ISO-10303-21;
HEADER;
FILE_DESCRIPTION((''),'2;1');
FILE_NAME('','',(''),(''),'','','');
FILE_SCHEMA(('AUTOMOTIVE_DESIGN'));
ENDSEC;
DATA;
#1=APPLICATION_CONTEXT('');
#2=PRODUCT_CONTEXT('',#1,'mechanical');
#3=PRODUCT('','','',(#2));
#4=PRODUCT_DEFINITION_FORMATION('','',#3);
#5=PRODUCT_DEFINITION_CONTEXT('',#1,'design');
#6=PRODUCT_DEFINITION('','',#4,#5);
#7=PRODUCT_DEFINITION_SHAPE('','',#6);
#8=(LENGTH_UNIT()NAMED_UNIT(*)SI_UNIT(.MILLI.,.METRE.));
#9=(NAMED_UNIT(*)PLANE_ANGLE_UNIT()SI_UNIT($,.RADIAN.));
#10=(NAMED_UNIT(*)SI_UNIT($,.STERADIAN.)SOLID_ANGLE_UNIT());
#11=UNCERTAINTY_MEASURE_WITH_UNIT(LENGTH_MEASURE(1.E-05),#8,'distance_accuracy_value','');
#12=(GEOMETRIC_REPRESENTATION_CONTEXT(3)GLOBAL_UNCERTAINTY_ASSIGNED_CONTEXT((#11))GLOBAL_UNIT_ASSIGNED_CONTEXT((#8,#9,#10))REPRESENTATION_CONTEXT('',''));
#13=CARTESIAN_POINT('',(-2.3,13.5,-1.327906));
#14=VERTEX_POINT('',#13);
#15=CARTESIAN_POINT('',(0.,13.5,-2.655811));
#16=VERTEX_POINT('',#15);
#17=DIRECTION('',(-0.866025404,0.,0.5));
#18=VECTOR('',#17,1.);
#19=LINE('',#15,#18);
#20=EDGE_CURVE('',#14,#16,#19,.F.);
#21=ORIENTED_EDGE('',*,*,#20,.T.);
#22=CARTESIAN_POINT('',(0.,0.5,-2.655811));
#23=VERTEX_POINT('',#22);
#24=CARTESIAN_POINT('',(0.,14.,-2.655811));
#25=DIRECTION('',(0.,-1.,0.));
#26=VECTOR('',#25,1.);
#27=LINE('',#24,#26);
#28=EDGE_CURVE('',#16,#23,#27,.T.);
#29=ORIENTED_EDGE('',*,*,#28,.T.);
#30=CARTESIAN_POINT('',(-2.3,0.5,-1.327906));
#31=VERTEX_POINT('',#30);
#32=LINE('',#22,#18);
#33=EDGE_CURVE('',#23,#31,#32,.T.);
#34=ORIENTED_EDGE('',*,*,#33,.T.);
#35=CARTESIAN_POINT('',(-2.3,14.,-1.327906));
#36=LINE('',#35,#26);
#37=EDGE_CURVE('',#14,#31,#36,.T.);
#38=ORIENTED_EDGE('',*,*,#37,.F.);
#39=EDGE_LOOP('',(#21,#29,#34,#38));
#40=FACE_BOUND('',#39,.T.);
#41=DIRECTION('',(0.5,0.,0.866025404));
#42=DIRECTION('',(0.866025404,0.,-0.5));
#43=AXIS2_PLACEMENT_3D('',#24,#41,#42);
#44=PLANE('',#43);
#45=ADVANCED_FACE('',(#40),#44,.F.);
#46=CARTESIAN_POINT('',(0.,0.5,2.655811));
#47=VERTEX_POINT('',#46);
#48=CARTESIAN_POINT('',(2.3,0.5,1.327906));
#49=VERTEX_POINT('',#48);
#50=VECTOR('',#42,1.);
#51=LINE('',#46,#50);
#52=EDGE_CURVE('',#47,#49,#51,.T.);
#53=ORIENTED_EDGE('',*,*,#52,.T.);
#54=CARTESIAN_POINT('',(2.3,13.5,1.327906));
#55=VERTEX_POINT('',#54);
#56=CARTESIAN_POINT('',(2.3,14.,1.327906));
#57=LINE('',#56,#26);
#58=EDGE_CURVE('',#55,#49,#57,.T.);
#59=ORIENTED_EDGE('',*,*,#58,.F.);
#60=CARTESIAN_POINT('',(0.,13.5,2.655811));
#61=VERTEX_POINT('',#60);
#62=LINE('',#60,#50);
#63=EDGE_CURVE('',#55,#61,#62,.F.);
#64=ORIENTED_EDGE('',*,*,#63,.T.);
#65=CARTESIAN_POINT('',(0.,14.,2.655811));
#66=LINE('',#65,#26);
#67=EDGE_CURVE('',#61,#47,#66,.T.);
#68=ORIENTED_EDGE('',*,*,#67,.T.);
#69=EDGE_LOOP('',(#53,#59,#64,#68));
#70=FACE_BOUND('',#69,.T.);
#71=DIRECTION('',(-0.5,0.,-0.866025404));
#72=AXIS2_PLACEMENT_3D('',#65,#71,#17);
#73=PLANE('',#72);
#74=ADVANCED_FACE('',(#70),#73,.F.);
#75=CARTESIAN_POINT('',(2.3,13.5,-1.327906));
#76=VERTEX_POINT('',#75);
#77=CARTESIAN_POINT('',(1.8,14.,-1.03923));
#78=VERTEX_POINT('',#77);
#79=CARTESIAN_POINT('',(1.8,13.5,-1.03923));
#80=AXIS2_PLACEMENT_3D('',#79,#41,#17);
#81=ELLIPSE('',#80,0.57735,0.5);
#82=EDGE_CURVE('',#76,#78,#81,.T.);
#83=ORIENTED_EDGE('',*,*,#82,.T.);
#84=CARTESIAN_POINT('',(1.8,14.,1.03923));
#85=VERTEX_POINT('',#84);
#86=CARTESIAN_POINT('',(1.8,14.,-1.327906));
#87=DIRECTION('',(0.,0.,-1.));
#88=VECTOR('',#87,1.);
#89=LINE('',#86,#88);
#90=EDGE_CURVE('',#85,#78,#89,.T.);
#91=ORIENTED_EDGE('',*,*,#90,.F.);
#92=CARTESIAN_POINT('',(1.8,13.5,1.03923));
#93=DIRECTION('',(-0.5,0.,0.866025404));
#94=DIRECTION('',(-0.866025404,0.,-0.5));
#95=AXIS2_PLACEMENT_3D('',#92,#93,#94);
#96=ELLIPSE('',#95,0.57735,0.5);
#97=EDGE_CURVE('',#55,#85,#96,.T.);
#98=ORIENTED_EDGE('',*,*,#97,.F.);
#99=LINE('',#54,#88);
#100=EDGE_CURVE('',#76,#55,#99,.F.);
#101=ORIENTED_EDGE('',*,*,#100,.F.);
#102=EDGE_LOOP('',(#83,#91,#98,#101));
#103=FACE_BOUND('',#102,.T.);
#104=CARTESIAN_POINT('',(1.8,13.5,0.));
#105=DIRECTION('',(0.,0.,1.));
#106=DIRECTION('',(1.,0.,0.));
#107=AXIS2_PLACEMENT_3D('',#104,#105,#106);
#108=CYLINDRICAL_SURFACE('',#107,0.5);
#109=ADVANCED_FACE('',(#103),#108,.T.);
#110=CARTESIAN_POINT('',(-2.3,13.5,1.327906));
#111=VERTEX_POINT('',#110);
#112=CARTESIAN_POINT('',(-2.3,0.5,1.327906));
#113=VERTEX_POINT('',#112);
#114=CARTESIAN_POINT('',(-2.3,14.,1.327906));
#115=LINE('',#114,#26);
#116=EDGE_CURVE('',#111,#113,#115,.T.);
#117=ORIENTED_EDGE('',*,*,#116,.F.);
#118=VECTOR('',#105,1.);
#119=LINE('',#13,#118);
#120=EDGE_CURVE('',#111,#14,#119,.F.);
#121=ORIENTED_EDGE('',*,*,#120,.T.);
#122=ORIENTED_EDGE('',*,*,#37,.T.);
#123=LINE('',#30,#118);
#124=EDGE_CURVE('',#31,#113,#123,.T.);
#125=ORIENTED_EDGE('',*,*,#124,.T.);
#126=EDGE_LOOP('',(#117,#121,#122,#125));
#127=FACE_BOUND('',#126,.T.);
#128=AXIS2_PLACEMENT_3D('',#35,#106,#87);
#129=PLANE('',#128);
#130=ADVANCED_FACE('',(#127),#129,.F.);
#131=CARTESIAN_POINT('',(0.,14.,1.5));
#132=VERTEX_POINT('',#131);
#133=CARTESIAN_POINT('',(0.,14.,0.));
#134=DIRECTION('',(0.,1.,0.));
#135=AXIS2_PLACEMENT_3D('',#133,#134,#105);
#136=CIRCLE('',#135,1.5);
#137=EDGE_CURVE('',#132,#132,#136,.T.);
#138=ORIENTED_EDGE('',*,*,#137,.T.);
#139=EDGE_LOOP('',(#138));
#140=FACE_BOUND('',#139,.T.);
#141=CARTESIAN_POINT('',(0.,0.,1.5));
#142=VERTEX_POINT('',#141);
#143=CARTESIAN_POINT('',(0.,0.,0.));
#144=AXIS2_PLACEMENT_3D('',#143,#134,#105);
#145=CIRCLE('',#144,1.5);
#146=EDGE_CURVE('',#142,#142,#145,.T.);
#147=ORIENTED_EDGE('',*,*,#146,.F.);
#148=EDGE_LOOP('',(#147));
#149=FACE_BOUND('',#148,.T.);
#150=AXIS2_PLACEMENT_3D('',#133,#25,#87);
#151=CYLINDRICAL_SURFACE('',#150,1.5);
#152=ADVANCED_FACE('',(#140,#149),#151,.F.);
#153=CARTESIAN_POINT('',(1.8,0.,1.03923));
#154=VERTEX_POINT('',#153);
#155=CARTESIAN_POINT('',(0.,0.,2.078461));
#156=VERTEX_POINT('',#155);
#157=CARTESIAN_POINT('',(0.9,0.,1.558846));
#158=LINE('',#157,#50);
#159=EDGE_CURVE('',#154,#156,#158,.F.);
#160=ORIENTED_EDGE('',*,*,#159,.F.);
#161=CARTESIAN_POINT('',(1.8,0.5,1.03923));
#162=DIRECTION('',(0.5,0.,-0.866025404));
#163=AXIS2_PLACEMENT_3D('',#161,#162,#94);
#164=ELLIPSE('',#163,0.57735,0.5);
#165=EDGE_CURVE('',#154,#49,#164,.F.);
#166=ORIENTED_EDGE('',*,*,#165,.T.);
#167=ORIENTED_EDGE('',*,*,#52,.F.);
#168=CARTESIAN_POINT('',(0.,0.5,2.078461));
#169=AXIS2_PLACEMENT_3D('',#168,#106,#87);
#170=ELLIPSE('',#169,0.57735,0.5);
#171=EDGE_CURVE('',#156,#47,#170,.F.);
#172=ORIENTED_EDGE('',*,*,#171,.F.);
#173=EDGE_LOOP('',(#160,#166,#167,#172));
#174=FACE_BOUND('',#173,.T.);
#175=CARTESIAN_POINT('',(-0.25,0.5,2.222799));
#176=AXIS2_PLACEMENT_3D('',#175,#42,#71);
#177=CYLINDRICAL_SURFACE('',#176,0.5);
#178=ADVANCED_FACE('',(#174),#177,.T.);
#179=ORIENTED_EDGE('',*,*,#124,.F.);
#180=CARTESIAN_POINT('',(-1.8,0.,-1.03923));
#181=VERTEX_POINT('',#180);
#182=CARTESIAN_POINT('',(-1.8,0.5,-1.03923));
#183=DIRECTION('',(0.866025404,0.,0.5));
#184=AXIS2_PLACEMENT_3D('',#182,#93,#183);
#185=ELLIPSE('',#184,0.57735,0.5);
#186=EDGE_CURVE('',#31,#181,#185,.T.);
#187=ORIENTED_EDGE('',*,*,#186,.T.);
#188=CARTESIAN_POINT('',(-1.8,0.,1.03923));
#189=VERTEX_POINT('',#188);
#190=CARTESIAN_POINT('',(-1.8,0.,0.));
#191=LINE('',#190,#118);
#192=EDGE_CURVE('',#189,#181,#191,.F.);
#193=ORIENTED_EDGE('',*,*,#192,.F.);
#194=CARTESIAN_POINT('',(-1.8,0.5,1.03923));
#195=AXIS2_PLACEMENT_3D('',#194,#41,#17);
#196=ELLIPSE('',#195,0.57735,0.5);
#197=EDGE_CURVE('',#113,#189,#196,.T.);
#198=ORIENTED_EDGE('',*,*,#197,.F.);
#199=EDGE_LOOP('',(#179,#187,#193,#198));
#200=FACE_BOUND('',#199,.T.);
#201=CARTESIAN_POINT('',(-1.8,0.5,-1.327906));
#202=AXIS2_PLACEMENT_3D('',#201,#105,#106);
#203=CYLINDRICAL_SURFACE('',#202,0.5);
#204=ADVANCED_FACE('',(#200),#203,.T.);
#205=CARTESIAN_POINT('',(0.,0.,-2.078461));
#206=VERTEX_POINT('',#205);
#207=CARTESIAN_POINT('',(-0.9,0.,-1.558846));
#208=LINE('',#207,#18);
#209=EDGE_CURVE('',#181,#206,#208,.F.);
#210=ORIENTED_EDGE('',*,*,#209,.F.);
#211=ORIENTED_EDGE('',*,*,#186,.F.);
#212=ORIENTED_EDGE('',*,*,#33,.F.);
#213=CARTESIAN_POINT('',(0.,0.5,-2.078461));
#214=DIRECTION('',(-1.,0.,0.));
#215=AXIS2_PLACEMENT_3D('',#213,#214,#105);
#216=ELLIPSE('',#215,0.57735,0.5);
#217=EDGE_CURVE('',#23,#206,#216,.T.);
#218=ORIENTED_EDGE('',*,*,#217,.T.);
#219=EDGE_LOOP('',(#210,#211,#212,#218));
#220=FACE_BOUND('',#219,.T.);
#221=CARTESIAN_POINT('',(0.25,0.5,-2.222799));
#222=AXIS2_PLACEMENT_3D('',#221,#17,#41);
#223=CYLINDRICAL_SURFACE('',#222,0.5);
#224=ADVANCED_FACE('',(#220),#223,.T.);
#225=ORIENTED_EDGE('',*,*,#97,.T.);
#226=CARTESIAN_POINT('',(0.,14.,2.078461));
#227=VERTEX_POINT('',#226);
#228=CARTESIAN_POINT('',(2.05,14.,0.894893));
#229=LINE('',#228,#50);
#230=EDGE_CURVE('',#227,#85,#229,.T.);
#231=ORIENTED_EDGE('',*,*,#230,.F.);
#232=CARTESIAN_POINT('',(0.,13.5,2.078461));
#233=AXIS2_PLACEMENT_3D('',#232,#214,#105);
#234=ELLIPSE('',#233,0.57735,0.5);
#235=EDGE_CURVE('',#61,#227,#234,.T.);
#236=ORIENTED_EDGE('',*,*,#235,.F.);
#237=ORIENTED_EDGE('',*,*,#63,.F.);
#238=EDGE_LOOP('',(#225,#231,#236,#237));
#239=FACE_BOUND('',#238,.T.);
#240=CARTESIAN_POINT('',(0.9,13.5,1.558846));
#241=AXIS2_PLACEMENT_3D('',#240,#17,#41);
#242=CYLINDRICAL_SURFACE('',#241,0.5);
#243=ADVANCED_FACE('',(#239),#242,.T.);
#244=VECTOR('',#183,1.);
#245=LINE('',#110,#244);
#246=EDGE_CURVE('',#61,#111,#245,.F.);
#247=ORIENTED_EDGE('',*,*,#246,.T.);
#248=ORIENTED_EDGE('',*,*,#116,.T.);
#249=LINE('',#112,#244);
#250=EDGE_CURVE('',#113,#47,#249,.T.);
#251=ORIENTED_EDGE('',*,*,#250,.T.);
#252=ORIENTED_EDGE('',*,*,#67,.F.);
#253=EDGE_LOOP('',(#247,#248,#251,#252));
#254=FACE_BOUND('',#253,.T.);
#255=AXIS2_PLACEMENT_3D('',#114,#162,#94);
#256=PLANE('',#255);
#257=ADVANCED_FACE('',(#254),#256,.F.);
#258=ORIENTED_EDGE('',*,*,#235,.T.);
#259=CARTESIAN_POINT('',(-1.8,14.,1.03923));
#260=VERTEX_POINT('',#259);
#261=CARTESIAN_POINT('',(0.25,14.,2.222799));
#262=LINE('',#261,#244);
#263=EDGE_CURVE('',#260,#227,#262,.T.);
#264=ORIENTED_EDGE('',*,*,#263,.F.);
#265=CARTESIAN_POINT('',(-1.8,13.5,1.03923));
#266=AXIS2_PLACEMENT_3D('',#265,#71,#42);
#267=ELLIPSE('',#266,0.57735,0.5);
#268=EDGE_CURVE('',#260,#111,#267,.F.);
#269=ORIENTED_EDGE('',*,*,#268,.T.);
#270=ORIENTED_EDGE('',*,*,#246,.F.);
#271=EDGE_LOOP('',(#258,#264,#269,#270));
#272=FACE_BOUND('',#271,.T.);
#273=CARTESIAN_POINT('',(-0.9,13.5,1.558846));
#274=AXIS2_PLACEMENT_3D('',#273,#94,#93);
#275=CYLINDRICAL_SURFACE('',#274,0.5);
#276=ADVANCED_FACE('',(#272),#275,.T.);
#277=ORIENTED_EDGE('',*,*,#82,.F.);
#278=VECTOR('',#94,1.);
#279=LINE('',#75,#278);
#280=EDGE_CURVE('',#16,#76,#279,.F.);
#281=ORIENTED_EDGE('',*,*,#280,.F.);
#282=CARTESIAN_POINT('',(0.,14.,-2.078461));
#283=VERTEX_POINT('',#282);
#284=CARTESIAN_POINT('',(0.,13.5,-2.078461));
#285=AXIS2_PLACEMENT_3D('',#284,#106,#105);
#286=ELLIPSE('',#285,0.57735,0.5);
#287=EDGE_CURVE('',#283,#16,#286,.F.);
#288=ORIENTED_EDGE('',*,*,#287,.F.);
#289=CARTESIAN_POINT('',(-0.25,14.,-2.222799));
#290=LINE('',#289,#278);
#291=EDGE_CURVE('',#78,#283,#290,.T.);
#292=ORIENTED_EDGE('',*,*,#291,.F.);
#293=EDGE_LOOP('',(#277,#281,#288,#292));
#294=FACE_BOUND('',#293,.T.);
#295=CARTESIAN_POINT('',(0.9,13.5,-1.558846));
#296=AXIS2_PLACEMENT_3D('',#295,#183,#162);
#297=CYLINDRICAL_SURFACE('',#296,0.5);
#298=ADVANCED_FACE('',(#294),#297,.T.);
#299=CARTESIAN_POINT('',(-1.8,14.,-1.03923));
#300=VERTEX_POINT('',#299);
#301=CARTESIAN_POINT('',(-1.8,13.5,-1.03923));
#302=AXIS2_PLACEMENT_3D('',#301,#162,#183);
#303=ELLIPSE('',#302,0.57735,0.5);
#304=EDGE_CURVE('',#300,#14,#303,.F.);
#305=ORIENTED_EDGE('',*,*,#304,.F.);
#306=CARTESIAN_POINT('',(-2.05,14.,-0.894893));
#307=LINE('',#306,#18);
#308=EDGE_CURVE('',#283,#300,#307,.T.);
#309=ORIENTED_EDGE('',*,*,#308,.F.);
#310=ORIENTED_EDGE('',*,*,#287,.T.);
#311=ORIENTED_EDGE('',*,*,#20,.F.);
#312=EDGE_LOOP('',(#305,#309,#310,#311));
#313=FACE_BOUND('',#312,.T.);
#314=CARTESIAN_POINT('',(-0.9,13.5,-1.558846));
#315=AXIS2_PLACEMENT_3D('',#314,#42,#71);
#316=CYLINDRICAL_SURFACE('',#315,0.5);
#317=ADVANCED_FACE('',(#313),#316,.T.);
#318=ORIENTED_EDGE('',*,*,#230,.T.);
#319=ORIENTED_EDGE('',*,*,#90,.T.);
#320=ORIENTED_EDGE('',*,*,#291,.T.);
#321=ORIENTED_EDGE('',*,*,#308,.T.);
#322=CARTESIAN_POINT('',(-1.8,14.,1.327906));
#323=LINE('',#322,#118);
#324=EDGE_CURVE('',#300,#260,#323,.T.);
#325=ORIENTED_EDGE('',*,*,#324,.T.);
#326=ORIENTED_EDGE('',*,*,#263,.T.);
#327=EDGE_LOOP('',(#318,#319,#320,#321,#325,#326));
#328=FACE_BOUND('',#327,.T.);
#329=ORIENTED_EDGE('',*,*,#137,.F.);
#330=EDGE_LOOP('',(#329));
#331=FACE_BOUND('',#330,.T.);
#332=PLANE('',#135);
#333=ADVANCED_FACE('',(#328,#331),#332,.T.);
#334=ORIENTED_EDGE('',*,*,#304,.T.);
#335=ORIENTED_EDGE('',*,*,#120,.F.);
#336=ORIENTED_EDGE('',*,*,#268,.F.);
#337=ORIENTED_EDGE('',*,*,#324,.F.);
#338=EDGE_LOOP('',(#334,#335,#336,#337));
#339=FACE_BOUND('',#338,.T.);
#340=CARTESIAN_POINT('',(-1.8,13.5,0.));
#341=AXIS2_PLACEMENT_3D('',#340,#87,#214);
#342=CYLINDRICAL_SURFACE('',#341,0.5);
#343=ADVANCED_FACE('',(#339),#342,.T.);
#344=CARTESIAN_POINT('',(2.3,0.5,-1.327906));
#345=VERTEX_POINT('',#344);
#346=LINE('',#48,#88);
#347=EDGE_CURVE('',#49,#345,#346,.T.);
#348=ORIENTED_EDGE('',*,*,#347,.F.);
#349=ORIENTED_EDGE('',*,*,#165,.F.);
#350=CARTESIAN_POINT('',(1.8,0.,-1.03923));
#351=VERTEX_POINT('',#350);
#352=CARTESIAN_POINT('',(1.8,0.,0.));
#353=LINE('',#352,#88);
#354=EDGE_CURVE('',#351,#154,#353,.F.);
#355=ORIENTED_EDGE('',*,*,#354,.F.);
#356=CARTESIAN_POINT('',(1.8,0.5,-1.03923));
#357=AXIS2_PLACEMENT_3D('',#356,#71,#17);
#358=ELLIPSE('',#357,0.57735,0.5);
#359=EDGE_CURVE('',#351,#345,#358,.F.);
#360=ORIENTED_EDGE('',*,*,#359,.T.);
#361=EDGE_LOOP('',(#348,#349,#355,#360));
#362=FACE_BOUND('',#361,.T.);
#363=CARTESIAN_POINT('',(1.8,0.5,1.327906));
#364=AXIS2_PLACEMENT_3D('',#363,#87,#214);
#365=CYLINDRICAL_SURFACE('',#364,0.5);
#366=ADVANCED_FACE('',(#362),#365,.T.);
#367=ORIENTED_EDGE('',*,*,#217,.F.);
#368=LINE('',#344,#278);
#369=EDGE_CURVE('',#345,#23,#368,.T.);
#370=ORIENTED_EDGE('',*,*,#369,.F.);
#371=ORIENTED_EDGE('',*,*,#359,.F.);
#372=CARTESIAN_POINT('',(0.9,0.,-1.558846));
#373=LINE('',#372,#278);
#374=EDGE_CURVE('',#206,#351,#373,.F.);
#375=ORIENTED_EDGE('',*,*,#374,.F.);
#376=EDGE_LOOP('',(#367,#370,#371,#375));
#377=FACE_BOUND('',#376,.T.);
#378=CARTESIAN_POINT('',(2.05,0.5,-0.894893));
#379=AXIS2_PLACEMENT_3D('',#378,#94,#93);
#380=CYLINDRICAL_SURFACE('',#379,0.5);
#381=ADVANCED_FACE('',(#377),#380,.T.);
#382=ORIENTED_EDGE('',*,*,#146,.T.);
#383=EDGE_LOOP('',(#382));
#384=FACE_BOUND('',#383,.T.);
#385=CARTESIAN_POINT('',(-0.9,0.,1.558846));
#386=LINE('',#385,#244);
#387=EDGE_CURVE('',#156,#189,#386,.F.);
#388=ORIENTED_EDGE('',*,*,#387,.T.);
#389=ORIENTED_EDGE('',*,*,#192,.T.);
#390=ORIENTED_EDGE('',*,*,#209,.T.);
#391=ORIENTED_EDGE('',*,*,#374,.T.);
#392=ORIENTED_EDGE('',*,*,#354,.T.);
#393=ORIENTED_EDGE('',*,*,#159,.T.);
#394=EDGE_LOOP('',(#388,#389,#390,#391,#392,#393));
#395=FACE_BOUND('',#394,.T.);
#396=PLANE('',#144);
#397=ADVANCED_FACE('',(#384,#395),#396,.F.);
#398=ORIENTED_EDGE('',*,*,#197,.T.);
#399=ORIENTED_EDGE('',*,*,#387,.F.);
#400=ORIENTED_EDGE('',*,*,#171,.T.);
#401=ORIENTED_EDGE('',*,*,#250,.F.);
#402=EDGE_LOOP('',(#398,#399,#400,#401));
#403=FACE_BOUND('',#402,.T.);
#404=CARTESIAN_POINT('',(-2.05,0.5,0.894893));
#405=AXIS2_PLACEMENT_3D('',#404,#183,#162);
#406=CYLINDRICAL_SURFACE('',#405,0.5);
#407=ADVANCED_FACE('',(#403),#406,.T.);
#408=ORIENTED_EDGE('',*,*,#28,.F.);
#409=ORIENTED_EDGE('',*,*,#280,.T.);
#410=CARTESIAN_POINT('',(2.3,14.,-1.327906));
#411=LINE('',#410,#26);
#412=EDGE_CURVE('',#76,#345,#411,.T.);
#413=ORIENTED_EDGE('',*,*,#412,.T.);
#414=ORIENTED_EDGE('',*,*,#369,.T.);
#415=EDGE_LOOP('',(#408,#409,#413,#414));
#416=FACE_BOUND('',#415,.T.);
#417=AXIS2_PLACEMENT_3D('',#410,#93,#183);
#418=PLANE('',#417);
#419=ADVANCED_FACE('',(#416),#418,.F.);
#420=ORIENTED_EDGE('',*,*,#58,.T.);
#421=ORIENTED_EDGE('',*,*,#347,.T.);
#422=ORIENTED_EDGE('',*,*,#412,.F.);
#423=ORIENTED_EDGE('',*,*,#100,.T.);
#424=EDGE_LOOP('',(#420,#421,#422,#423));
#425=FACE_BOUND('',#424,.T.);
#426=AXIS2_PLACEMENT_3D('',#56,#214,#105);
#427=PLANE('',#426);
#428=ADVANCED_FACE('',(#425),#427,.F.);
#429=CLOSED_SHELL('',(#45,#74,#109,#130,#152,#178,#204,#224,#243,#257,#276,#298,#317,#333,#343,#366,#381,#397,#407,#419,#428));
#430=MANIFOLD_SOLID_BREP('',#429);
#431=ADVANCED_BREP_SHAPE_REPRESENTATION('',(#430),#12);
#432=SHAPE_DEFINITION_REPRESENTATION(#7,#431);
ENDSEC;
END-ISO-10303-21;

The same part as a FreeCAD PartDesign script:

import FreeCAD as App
import Part
import Sketcher

V = App.Vector
Q = App.Units.Quantity


def edges_at(feature, points):
    """Names of the edges that pass closest to the given points."""
    edges = feature.Shape.Edges
    near = lambda p: min(range(len(edges)), key=lambda i: edges[i].distToShape(Part.Vertex(*p))[0])
    return sorted({f"Edge{near(p) + 1}" for p in points})


def add_polygon(sketch, points):
    """Adds a closed chain of lines whose ends are joined by coincident constraints."""
    first, n = sketch.GeometryCount, len(points)
    for a, b in zip(points, points[1:] + points[:1]):
        sketch.addGeometry(Part.LineSegment(App.Vector(*a, 0), App.Vector(*b, 0)), False)
    for i in range(n):
        sketch.addConstraint(Sketcher.Constraint("Coincident", first + i, 2, first + (i + 1) % n, 1))

doc = App.newDocument("Part")
body = doc.addObject("PartDesign::Body", "Body")

# Sketch on XZ plane
sketch1 = body.newObject("Sketcher::SketchObject", "Sketch")
sketch1.AttachmentSupport = (doc.getObject("XZ_Plane"), [""])
sketch1.MapMode = "FlatFace"
add_polygon(sketch1, [(2.3, 1.3), (2.3, -1.3), (0, -2.7), (-2.3, -1.3), (-2.3, 1.3), (0, 2.7)])  # lines 0-5
sketch1.addGeometry(Part.Circle(V(0, 0, 0), V(0, 0, 1), 1.5), False)  # 6
sketch1.addConstraint(Sketcher.Constraint("Vertical", 0))
sketch1.addConstraint(Sketcher.Constraint("Vertical", 3))
sketch1.addConstraint(Sketcher.Constraint("Coincident", 6, 3, -1, 1))
sketch1.addConstraint(Sketcher.Constraint("Symmetric", 0, 2, 3, 2, -1, 1))
sketch1.addConstraint(Sketcher.Constraint("Symmetric", 1, 2, 4, 2, -1, 1))
sketch1.addConstraint(Sketcher.Constraint("PointOnObject", 1, 2, -2))
sketch1.addConstraint(Sketcher.Constraint("Parallel", 2, 5))
sketch1.addConstraint(Sketcher.Constraint("Horizontal", 0, 2, 2, 2))
sketch1.addConstraint(Sketcher.Constraint("Diameter", 6, 3.0))
sketch1.addConstraint(Sketcher.Constraint("Angle", 1, Q("-150 deg")))
sketch1.addConstraint(Sketcher.Constraint("DistanceX", -1, 1, 0, 2, 2.3))
sketch1.addConstraint(Sketcher.Constraint("DistanceY", 0, 2, 0, 1, 2.655811))
pad1 = body.newObject("PartDesign::Pad", "Pad")
pad1.Profile = sketch1
pad1.Length = 14
pad1.Reversed = True
doc.recompute()

fillet = body.newObject("PartDesign::Fillet", "Fillet")
fillet.Base = (pad1, edges_at(pad1, [
    (1.15, 14, -1.992),
    (-1.15, 14, -1.992),
    (-2.3, 14, 0),
    (-1.15, 14, 1.992),
    (1.15, 14, 1.992),
    (-1.15, 0, 1.992),
    (-2.3, 0, 0),
    (-1.15, 0, -1.992),
    (1.15, 0, -1.992),
    (2.3, 0, 0),
    (1.15, 0, 1.992),
    (2.3, 14, 0),
]))
fillet.Radius = 0.5

doc.recompute()
